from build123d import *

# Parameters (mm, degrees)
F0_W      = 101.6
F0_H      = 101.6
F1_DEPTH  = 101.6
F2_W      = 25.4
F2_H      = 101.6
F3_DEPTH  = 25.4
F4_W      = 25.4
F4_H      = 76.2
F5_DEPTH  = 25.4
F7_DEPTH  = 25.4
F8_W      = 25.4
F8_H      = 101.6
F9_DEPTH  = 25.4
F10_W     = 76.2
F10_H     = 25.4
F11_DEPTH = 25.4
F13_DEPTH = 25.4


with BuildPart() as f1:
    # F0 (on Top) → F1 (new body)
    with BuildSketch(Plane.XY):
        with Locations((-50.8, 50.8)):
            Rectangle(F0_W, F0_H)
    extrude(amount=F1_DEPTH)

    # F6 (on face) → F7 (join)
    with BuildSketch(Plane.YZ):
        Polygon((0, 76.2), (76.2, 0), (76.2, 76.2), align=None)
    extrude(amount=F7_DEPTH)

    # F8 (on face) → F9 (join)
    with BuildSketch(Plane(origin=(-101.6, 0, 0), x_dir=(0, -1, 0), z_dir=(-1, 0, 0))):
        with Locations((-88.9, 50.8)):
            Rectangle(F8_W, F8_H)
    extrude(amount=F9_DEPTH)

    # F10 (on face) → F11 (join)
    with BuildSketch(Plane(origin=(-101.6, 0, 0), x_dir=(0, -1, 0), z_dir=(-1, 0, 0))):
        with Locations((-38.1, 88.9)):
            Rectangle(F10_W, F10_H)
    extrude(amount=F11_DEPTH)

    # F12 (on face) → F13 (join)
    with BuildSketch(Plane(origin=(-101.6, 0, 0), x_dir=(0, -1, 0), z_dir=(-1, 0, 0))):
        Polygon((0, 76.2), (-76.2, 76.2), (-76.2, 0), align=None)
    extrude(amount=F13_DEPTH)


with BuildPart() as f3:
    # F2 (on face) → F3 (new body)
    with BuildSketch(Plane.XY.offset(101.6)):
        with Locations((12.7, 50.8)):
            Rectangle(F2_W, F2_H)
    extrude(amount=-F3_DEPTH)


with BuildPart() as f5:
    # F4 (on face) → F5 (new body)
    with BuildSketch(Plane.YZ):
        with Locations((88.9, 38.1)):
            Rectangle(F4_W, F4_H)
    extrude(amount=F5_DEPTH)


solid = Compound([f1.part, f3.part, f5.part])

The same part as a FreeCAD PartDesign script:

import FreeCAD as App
import Part
import Sketcher
from FreeCAD import Vector
Q = App.Units.Quantity


def add_polygon(sketch, points):
    """Adds a closed chain of lines whose ends are joined by coincident constraints."""
    first, n = sketch.GeometryCount, len(points)
    for a, b in zip(points, points[1:] + points[:1]):
        sketch.addGeometry(Part.LineSegment(App.Vector(*a, 0), App.Vector(*b, 0)), False)
    for i in range(n):
        sketch.addConstraint(Sketcher.Constraint("Coincident", first + i, 2, first + (i + 1) % n, 1))

doc = App.newDocument("Part")
params = doc.addObject("Spreadsheet::Sheet", "Params")
for row, (alias, value) in enumerate([
    ("sketch1_width", "4 in"),
    ("pad1_length", "4 in"),
    ("sketch2_width", "3 in"),
    ("pad2_length", "1 in"),
    ("sketch3_width", "1 in"),
    ("sketch3_height", "4 in"),
    ("pad3_length", "1 in"),
    ("sketch4_width", "3 in"),
    ("sketch4_height", "1 in"),
    ("pad4_length", "1 in"),
    ("sketch5_width", "3 in"),
    ("pad5_length", "1 in"),
    ("sketch6_width", "1 in"),
    ("sketch6_height", "4 in"),
    ("pad6_length", "1 in"),
    ("sketch7_width", "1 in"),
    ("sketch7_height", "3 in"),
    ("pad7_length", "1 in"),
], start=1):
    params.set(f"A{row}", alias)
    params.set(f"B{row}", "=" + value)
    params.setAlias(f"B{row}", alias)

body = doc.addObject("PartDesign::Body", "Body")

# Sketch on XY plane
sketch1 = doc.addObject("Sketcher::SketchObject", "Sketch")
body.addObject(sketch1)
sketch1.AttachmentSupport = (doc.XY_Plane, [""])
sketch1.MapMode = "FlatFace"
add_polygon(sketch1, [(-102, 102), (-102, 0), (0, 0), (0, 102)])  # lines 0-3
sketch1.addConstraint(Sketcher.Constraint("Vertical", 0))
sketch1.addConstraint(Sketcher.Constraint("Horizontal", 1))
sketch1.addConstraint(Sketcher.Constraint("Vertical", 2))
sketch1.addConstraint(Sketcher.Constraint("Horizontal", 3))
sketch1.addConstraint(Sketcher.Constraint("Coincident", 1, 2, -1, 1))
sketch1.addConstraint(Sketcher.Constraint("Equal", 3, 0))
sketch1.addConstraint(Sketcher.Constraint("DistanceX", 1, 1, 1, 2, Q("4 in")))
sketch1.setExpression("Constraints[10]", "Params.sketch1_width")
pad1 = doc.addObject("PartDesign::Pad", "Pad")
body.addObject(pad1)
pad1.Profile = sketch1
pad1.setExpression("Length", "Params.pad1_length")

# Sketch on YZ plane
sketch2 = doc.addObject("Sketcher::SketchObject", "Sketch001")
body.addObject(sketch2)
sketch2.AttachmentSupport = (doc.YZ_Plane, [""])
sketch2.MapMode = "FlatFace"
add_polygon(sketch2, [(0, 76), (76, 0), (76, 76)])  # lines 0-2
sketch2.addConstraint(Sketcher.Constraint("Vertical", 1))
sketch2.addConstraint(Sketcher.Constraint("Horizontal", 2))
sketch2.addConstraint(Sketcher.Constraint("PointOnObject", 0, 2, -1))
sketch2.addConstraint(Sketcher.Constraint("PointOnObject", 2, 2, -2))
sketch2.addConstraint(Sketcher.Constraint("Equal", 2, 1))
sketch2.addConstraint(Sketcher.Constraint("DistanceX", 2, 2, 2, 1, Q("3 in")))
sketch2.setExpression("Constraints[8]", "Params.sketch2_width")
pad2 = doc.addObject("PartDesign::Pad", "Pad001")
body.addObject(pad2)
pad2.Profile = sketch2
pad2.setExpression("Length", "Params.pad2_length")

# Sketch on YZ plane
sketch3 = doc.addObject("Sketcher::SketchObject", "Sketch002")
body.addObject(sketch3)
sketch3.AttachmentSupport = (doc.YZ_Plane, [""])
sketch3.MapMode = "FlatFace"
sketch3.AttachmentOffset = App.Placement(Vector(0, 0, -4 * 25.4), App.Rotation())
add_polygon(sketch3, [(102, 102), (102, 0), (76, 0), (76, 102)])  # lines 0-3
sketch3.addConstraint(Sketcher.Constraint("Vertical", 0))
sketch3.addConstraint(Sketcher.Constraint("Horizontal", 1))
sketch3.addConstraint(Sketcher.Constraint("Vertical", 2))
sketch3.addConstraint(Sketcher.Constraint("Horizontal", 3))
sketch3.addConstraint(Sketcher.Constraint("PointOnObject", 0, 2, -1))
sketch3.addConstraint(Sketcher.Constraint("DistanceX", 1, 2, 1, 1, Q("1 in")))
sketch3.addConstraint(Sketcher.Constraint("DistanceY", 0, 2, 0, 1, Q("4 in")))
sketch3.addConstraint(Sketcher.Constraint("DistanceX", -1, 1, 0, 2, Q("4 in")))
sketch3.setExpression("Constraints[9]", "Params.sketch3_width")
sketch3.setExpression("Constraints[10]", "Params.sketch3_height")
pad3 = doc.addObject("PartDesign::Pad", "Pad002")
body.addObject(pad3)
pad3.Profile = sketch3
pad3.setExpression("Length", "Params.pad3_length")
pad3.Reversed = True

# Sketch on YZ plane
sketch4 = doc.addObject("Sketcher::SketchObject", "Sketch003")
body.addObject(sketch4)
sketch4.AttachmentSupport = (doc.YZ_Plane, [""])
sketch4.MapMode = "FlatFace"
sketch4.AttachmentOffset = App.Placement(Vector(0, 0, -4 * 25.4), App.Rotation())
add_polygon(sketch4, [(76, 102), (76, 76), (0, 76), (0, 102)])  # lines 0-3
sketch4.addConstraint(Sketcher.Constraint("Vertical", 0))
sketch4.addConstraint(Sketcher.Constraint("Horizontal", 1))
sketch4.addConstraint(Sketcher.Constraint("Vertical", 2))
sketch4.addConstraint(Sketcher.Constraint("Horizontal", 3))
sketch4.addConstraint(Sketcher.Constraint("PointOnObject", 1, 2, -2))
sketch4.addConstraint(Sketcher.Constraint("DistanceX", 1, 2, 1, 1, Q("3 in")))
sketch4.addConstraint(Sketcher.Constraint("DistanceY", 0, 2, 0, 1, Q("1 in")))
sketch4.addConstraint(Sketcher.Constraint("DistanceY", -1, 1, 0, 2, Q("3 in")))
sketch4.setExpression("Constraints[9]", "Params.sketch4_width")
sketch4.setExpression("Constraints[10]", "Params.sketch4_height")
pad4 = doc.addObject("PartDesign::Pad", "Pad003")
body.addObject(pad4)
pad4.Profile = sketch4
pad4.setExpression("Length", "Params.pad4_length")
pad4.Reversed = True

# Sketch on YZ plane
sketch5 = doc.addObject("Sketcher::SketchObject", "Sketch004")
body.addObject(sketch5)
sketch5.AttachmentSupport = (doc.YZ_Plane, [""])
sketch5.MapMode = "FlatFace"
sketch5.AttachmentOffset = App.Placement(Vector(0, 0, -4 * 25.4), App.Rotation())
add_polygon(sketch5, [(0, 76), (76, 76), (76, 0)])  # lines 0-2
sketch5.addConstraint(Sketcher.Constraint("Horizontal", 0))
sketch5.addConstraint(Sketcher.Constraint("Vertical", 1))
sketch5.addConstraint(Sketcher.Constraint("PointOnObject", 1, 2, -1))
sketch5.addConstraint(Sketcher.Constraint("PointOnObject", 2, 2, -2))
sketch5.addConstraint(Sketcher.Constraint("Equal", 0, 1))
sketch5.addConstraint(Sketcher.Constraint("DistanceX", 0, 1, 0, 2, Q("3 in")))
sketch5.setExpression("Constraints[8]", "Params.sketch5_width")
pad5 = doc.addObject("PartDesign::Pad", "Pad004")
body.addObject(pad5)
pad5.Profile = sketch5
pad5.setExpression("Length", "Params.pad5_length")
pad5.Reversed = True
body2 = doc.addObject("PartDesign::Body", "Body001")

# Sketch on XY plane
sketch6 = doc.addObject("Sketcher::SketchObject", "Sketch005")
body2.addObject(sketch6)
sketch6.AttachmentSupport = (doc.getObject("XY_Plane001"), [""])
sketch6.MapMode = "FlatFace"
sketch6.AttachmentOffset = App.Placement(Vector(0, 0, 4 * 25.4), App.Rotation())
add_polygon(sketch6, [(0, 102), (0, 0), (25, 0), (25, 102)])  # lines 0-3
sketch6.addConstraint(Sketcher.Constraint("Vertical", 0))
sketch6.addConstraint(Sketcher.Constraint("Horizontal", 1))
sketch6.addConstraint(Sketcher.Constraint("Vertical", 2))
sketch6.addConstraint(Sketcher.Constraint("Horizontal", 3))
sketch6.addConstraint(Sketcher.Constraint("Coincident", 0, 2, -1, 1))
sketch6.addConstraint(Sketcher.Constraint("DistanceX", 1, 1, 1, 2, Q("1 in")))
sketch6.addConstraint(Sketcher.Constraint("DistanceY", 0, 2, 0, 1, Q("4 in")))
sketch6.setExpression("Constraints[9]", "Params.sketch6_width")
sketch6.setExpression("Constraints[10]", "Params.sketch6_height")
pad6 = doc.addObject("PartDesign::Pad", "Pad005")
body2.addObject(pad6)
pad6.Profile = sketch6
pad6.setExpression("Length", "Params.pad6_length")
pad6.Reversed = True
body3 = doc.addObject("PartDesign::Body", "Body002")

# Sketch on YZ plane
sketch7 = doc.addObject("Sketcher::SketchObject", "Sketch006")
body3.addObject(sketch7)
sketch7.AttachmentSupport = (doc.getObject("YZ_Plane002"), [""])
sketch7.MapMode = "FlatFace"
add_polygon(sketch7, [(76, 76), (76, 0), (102, 0), (102, 76)])  # lines 0-3
sketch7.addConstraint(Sketcher.Constraint("Vertical", 0))
sketch7.addConstraint(Sketcher.Constraint("Horizontal", 1))
sketch7.addConstraint(Sketcher.Constraint("Vertical", 2))
sketch7.addConstraint(Sketcher.Constraint("Horizontal", 3))
sketch7.addConstraint(Sketcher.Constraint("PointOnObject", 0, 2, -1))
sketch7.addConstraint(Sketcher.Constraint("DistanceX", 1, 1, 1, 2, Q("1 in")))
sketch7.addConstraint(Sketcher.Constraint("DistanceY", 0, 2, 0, 1, Q("3 in")))
sketch7.addConstraint(Sketcher.Constraint("DistanceX", -1, 1, 0, 2, Q("3 in")))
sketch7.setExpression("Constraints[9]", "Params.sketch7_width")
sketch7.setExpression("Constraints[10]", "Params.sketch7_height")
pad7 = doc.addObject("PartDesign::Pad", "Pad006")
body3.addObject(pad7)
pad7.Profile = sketch7
pad7.setExpression("Length", "Params.pad7_length")

doc.recompute()
